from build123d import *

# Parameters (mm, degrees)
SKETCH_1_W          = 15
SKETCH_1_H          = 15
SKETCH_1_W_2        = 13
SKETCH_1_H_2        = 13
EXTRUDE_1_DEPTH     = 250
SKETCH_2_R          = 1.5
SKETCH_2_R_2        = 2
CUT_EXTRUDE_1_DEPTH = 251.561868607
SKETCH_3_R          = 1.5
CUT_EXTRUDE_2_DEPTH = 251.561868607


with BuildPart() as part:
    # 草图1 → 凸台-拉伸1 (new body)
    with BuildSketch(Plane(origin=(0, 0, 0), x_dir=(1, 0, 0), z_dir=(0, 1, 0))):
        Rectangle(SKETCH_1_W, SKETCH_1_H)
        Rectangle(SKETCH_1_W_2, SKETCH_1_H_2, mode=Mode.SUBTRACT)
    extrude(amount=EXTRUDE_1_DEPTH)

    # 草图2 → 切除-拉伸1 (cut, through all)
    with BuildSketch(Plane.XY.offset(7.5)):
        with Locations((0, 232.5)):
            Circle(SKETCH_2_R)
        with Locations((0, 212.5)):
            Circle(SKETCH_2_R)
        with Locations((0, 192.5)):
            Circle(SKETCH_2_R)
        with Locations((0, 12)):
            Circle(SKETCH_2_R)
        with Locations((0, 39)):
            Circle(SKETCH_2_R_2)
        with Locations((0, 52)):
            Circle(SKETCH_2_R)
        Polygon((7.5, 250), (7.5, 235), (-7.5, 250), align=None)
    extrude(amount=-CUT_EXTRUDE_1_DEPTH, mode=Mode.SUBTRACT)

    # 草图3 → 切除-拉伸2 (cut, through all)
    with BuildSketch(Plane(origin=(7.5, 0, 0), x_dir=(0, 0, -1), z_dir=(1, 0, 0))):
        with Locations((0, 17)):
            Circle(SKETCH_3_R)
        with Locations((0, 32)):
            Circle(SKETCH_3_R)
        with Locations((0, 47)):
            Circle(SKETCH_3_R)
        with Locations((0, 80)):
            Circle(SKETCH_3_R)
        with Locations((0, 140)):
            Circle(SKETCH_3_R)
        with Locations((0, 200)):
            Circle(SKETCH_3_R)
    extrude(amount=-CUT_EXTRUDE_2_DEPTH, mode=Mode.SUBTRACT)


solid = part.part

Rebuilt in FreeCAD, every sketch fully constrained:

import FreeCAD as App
import Part
import Sketcher


def add_polygon(sketch, points):
    """Adds a closed chain of lines whose ends are joined by coincident constraints."""
    first, n = sketch.GeometryCount, len(points)
    for a, b in zip(points, points[1:] + points[:1]):
        sketch.addGeometry(Part.LineSegment(App.Vector(*a, 0), App.Vector(*b, 0)), False)
    for i in range(n):
        sketch.addConstraint(Sketcher.Constraint("Coincident", first + i, 2, first + (i + 1) % n, 1))

doc = App.newDocument("Part")
body = doc.addObject("PartDesign::Body", "Body")

sketch1 = body.newObject("Sketcher::SketchObject", "Sketch")
sketch1.AttachmentSupport = (doc.getObject("XZ_Plane"), [""])
sketch1.MapMode = "FlatFace"
add_polygon(sketch1, [(-7.5, -7.5), (-7.5, 7.5), (7.5, 7.5), (7.5, -7.5)])
add_polygon(sketch1, [(6.5, 6.5), (-6.5, 6.5), (-6.5, -6.5), (6.5, -6.5)])
sketch1.addConstraint([
    Sketcher.Constraint("Vertical", 0),
    Sketcher.Constraint("Horizontal", 1),
    Sketcher.Constraint("Vertical", 2),
    Sketcher.Constraint("Horizontal", 3),
    Sketcher.Constraint("Horizontal", 4),
    Sketcher.Constraint("Vertical", 5),
    Sketcher.Constraint("Horizontal", 6),
    Sketcher.Constraint("Vertical", 7),
    Sketcher.Constraint("Symmetric", 0, 2, 2, 2, -1, 1),
    Sketcher.Constraint("Symmetric", 4, 2, 6, 2, -1, 1),
    Sketcher.Constraint("Equal", 3, 0),
    Sketcher.Constraint("Equal", 6, 5),
    Sketcher.Constraint("DistanceX", 1, 1, 1, 2, 15.0),
    Sketcher.Constraint("DistanceX", 4, 2, 4, 1, 13.0),
])
pad1 = body.newObject("PartDesign::Pad", "Pad")
pad1.Profile = sketch1
pad1.Length = 250
pad1.Reversed = True

sketch2 = body.newObject("Sketcher::SketchObject", "Sketch001")
sketch2.AttachmentSupport = (doc.getObject("XY_Plane"), [""])
sketch2.MapMode = "FlatFace"
sketch2.AttachmentOffset = App.Placement(App.Vector(0, 0, 7.5), App.Rotation())
sketch2.addGeometry(Part.Circle(App.Vector(0, 232.5, 0), App.Vector(0, 0, 1), 1.5), False)
sketch2.addGeometry(Part.Circle(App.Vector(0, 212.5, 0), App.Vector(0, 0, 1), 1.5), False)
sketch2.addGeometry(Part.Circle(App.Vector(0, 192.5, 0), App.Vector(0, 0, 1), 1.5), False)
sketch2.addGeometry(Part.Circle(App.Vector(0, 12, 0), App.Vector(0, 0, 1), 1.5), False)
sketch2.addGeometry(Part.Circle(App.Vector(0, 39, 0), App.Vector(0, 0, 1), 2), False)
sketch2.addGeometry(Part.Circle(App.Vector(0, 52, 0), App.Vector(0, 0, 1), 1.5), False)
add_polygon(sketch2, [(7.5, 235), (7.5, 250), (-7.5, 250)])
sketch2.addConstraint([
    Sketcher.Constraint("Vertical", 6),
    Sketcher.Constraint("Horizontal", 7),
    Sketcher.Constraint("Equal", 0, 1),
    Sketcher.Constraint("Equal", 1, 2),
    Sketcher.Constraint("Equal", 2, 3),
    Sketcher.Constraint("Equal", 3, 5),
    Sketcher.Constraint("PointOnObject", 0, 3, -2),
    Sketcher.Constraint("PointOnObject", 1, 3, -2),
    Sketcher.Constraint("PointOnObject", 2, 3, -2),
    Sketcher.Constraint("PointOnObject", 3, 3, -2),
    Sketcher.Constraint("PointOnObject", 4, 3, -2),
    Sketcher.Constraint("PointOnObject", 5, 3, -2),
    Sketcher.Constraint("Equal", 7, 6),
    Sketcher.Constraint("Diameter", 0, 3.0),
    Sketcher.Constraint("Diameter", 4, 4.0),
    Sketcher.Constraint("DistanceX", 7, 2, 7, 1, 15.0),
    Sketcher.Constraint("DistanceY", -1, 1, 3, 3, 12.0),
    Sketcher.Constraint("DistanceY", -1, 1, 4, 3, 39.0),
    Sketcher.Constraint("DistanceY", -1, 1, 5, 3, 52.0),
    Sketcher.Constraint("DistanceY", -1, 1, 6, 2, 250.0),
    Sketcher.Constraint("DistanceY", 1, 3, 0, 3, 20.0),
    Sketcher.Constraint("DistanceY", 2, 3, 1, 3, 20.0),
    Sketcher.Constraint("DistanceY", -1, 1, 0, 3, 232.5),
    Sketcher.Constraint("DistanceX", -1, 1, 6, 2, 7.5),
])
pocket1 = body.newObject("PartDesign::Pocket", "Pocket")
pocket1.Profile = sketch2
pocket1.Type = "ThroughAll"

sketch3 = body.newObject("Sketcher::SketchObject", "Sketch002")
sketch3.AttachmentSupport = (doc.getObject("YZ_Plane"), [""])
sketch3.MapMode = "FlatFace"
sketch3.AttachmentOffset = App.Placement(App.Vector(0, 0, 7.5), App.Rotation())
sketch3.addGeometry([
    Part.Circle(App.Vector(17, 0, 0), App.Vector(0, 0, 1), 1.5),
    Part.Circle(App.Vector(32, 0, 0), App.Vector(0, 0, 1), 1.5),
    Part.Circle(App.Vector(47, 0, 0), App.Vector(0, 0, 1), 1.5),
    Part.Circle(App.Vector(80, 0, 0), App.Vector(0, 0, 1), 1.5),
    Part.Circle(App.Vector(140, 0, 0), App.Vector(0, 0, 1), 1.5),
    Part.Circle(App.Vector(200, 0, 0), App.Vector(0, 0, 1), 1.5),
], False)
sketch3.addConstraint([
    Sketcher.Constraint("Equal", 0, 1),
    Sketcher.Constraint("Equal", 1, 2),
    Sketcher.Constraint("Equal", 2, 3),
    Sketcher.Constraint("Equal", 3, 4),
    Sketcher.Constraint("Equal", 4, 5),
    Sketcher.Constraint("PointOnObject", 0, 3, -1),
    Sketcher.Constraint("PointOnObject", 1, 3, -1),
    Sketcher.Constraint("PointOnObject", 2, 3, -1),
    Sketcher.Constraint("PointOnObject", 3, 3, -1),
    Sketcher.Constraint("PointOnObject", 4, 3, -1),
    Sketcher.Constraint("PointOnObject", 5, 3, -1),
    Sketcher.Constraint("Diameter", 0, 3.0),
    Sketcher.Constraint("DistanceX", -1, 1, 0, 3, 17.0),
    Sketcher.Constraint("DistanceX", -1, 1, 1, 3, 32.0),
    Sketcher.Constraint("DistanceX", -1, 1, 2, 3, 47.0),
    Sketcher.Constraint("DistanceX", -1, 1, 3, 3, 80.0),
    Sketcher.Constraint("DistanceX", -1, 1, 4, 3, 140.0),
    Sketcher.Constraint("DistanceX", -1, 1, 5, 3, 200.0),
])
pocket2 = body.newObject("PartDesign::Pocket", "Pocket001")
pocket2.Profile = sketch3
pocket2.Type = "ThroughAll"

doc.recompute()
